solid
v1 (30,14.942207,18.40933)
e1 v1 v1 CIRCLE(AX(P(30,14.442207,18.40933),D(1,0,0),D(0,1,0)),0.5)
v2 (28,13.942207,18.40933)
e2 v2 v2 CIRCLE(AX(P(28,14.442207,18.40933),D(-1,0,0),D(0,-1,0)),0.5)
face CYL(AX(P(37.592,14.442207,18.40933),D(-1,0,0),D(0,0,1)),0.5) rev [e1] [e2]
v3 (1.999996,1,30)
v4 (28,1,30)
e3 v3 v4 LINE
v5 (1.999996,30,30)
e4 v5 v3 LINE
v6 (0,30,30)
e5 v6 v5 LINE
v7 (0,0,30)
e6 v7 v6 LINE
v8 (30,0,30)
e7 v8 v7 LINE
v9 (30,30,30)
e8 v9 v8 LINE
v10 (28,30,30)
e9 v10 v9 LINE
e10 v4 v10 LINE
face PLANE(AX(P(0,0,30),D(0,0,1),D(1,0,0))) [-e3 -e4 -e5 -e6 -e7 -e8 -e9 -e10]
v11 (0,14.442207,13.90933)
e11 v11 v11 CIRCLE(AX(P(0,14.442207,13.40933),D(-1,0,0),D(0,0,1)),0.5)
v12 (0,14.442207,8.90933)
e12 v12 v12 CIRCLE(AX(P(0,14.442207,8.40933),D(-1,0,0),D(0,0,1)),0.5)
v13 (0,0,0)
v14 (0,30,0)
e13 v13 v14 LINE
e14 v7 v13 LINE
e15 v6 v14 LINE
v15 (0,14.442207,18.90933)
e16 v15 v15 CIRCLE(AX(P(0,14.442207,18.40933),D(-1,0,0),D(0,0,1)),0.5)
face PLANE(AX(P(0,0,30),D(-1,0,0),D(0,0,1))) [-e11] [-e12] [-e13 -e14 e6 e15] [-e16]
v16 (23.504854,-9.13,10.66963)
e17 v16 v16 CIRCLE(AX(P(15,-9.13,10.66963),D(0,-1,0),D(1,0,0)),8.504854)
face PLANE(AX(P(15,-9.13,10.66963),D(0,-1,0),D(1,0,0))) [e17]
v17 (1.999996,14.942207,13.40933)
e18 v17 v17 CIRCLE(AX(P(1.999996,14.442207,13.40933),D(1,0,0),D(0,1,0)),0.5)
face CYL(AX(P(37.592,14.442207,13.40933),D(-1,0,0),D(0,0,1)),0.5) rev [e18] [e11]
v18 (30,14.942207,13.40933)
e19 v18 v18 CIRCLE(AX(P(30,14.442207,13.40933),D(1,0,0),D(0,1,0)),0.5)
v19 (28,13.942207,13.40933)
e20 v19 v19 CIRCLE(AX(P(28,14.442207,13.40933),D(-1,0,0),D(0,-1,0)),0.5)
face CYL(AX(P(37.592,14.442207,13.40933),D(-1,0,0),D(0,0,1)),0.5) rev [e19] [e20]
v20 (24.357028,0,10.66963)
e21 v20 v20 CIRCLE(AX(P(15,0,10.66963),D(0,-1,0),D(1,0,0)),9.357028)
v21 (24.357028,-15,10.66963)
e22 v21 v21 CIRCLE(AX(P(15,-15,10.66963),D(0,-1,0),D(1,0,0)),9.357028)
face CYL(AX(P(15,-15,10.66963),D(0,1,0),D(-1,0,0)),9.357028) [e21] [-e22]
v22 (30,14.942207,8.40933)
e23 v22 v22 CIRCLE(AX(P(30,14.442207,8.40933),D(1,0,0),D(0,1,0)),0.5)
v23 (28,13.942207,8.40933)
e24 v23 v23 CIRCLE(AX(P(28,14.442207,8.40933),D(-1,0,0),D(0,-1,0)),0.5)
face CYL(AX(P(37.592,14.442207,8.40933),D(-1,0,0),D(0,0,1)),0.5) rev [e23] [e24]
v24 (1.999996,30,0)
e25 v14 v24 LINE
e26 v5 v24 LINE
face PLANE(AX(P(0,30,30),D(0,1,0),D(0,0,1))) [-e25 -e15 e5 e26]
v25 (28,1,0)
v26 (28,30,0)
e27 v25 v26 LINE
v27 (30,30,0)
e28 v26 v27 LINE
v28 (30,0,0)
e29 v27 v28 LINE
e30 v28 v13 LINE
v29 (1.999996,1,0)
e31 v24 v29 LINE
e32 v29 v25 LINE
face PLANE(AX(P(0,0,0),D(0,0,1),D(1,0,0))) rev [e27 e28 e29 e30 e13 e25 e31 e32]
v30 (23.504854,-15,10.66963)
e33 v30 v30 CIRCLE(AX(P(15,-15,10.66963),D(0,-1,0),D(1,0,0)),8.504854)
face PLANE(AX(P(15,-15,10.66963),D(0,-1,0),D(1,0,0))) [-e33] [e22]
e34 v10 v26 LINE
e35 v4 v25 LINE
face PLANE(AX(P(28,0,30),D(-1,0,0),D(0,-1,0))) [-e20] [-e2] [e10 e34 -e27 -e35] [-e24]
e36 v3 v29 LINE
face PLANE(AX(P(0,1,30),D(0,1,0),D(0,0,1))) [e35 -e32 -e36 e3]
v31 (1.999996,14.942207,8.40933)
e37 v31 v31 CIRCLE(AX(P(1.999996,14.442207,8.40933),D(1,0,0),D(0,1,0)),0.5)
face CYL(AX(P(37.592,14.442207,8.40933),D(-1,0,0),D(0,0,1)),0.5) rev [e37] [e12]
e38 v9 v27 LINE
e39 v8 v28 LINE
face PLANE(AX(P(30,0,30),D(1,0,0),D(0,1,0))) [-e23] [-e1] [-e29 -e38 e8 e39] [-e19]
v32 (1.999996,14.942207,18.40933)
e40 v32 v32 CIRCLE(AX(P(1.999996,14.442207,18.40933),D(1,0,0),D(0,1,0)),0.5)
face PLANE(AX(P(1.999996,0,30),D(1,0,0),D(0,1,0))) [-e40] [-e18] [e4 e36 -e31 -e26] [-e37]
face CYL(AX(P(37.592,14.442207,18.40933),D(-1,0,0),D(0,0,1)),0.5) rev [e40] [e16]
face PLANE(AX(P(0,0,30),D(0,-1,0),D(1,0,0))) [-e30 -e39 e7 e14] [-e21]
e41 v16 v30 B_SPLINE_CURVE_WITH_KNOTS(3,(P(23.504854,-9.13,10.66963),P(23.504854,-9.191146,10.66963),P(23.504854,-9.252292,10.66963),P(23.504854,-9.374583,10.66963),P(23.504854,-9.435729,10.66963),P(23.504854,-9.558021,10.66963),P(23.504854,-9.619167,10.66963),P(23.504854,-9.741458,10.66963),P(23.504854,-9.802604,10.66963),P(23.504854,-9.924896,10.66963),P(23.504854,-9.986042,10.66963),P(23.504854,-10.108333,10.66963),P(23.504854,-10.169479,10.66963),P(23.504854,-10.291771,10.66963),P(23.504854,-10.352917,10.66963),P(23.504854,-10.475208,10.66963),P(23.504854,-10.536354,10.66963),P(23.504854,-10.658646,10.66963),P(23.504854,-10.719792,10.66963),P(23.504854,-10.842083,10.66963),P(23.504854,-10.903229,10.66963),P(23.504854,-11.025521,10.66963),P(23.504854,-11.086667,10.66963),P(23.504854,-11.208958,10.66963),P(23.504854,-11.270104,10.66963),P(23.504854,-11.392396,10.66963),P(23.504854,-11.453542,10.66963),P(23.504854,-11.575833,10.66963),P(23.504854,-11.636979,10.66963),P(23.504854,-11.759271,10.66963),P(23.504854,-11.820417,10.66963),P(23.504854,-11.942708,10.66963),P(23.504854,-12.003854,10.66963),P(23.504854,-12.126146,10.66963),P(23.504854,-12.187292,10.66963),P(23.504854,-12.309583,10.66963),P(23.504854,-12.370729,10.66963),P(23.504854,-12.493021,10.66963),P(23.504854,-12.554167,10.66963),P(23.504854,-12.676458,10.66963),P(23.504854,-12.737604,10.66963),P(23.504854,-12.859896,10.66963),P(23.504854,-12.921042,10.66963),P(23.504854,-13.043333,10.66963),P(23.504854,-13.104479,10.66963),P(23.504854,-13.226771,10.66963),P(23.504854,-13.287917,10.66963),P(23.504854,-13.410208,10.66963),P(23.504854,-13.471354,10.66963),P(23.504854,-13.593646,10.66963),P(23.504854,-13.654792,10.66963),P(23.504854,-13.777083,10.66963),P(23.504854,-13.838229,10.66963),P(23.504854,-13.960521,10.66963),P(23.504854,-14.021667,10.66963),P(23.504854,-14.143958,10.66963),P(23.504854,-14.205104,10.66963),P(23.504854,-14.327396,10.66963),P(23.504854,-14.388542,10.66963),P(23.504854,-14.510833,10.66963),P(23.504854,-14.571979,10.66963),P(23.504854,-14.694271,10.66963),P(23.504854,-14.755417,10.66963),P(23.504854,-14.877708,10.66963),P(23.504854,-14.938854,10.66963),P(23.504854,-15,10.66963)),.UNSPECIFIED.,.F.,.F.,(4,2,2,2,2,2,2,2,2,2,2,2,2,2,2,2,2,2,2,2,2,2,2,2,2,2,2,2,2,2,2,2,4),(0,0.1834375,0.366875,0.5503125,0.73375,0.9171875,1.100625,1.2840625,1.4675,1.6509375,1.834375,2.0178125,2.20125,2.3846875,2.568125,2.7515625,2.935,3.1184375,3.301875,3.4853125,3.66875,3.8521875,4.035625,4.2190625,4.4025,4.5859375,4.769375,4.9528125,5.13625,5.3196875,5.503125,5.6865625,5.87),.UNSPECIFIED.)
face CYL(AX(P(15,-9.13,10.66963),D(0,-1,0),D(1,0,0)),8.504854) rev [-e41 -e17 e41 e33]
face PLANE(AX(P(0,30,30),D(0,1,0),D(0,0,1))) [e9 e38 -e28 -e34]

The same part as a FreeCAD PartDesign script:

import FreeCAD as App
import Part
import Sketcher

doc = App.newDocument("Part")
body = doc.addObject("PartDesign::Body", "Body")

# Sketch on XY plane
sketch1 = doc.addObject("Sketcher::SketchObject", "Sketch")
body.addObject(sketch1)
sketch1.AttachmentSupport = (doc.XY_Plane, [""])
sketch1.MapMode = "FlatFace"
sketch1.addGeometry(Part.LineSegment(App.Vector(0, 30, 0), App.Vector(0, 0, 0)), False)
sketch1.addGeometry(Part.LineSegment(App.Vector(0, 0, 0), App.Vector(30, 0, 0)), False)
sketch1.addGeometry(Part.LineSegment(App.Vector(30, 0, 0), App.Vector(30, 30, 0)), False)
sketch1.addGeometry(Part.LineSegment(App.Vector(30, 30, 0), App.Vector(28, 30, 0)), False)
sketch1.addGeometry(Part.LineSegment(App.Vector(28, 30, 0), App.Vector(28, 1, 0)), False)
sketch1.addGeometry(Part.LineSegment(App.Vector(28, 1, 0), App.Vector(2, 1, 0)), False)
sketch1.addGeometry(Part.LineSegment(App.Vector(2, 1, 0), App.Vector(2, 30, 0)), False)
sketch1.addGeometry(Part.LineSegment(App.Vector(2, 30, 0), App.Vector(0, 30, 0)), False)
sketch1.addConstraint(Sketcher.Constraint("Coincident", 0, 2, 1, 1))
sketch1.addConstraint(Sketcher.Constraint("Coincident", 1, 2, 2, 1))
sketch1.addConstraint(Sketcher.Constraint("Coincident", 2, 2, 3, 1))
sketch1.addConstraint(Sketcher.Constraint("Coincident", 3, 2, 4, 1))
sketch1.addConstraint(Sketcher.Constraint("Coincident", 4, 2, 5, 1))
sketch1.addConstraint(Sketcher.Constraint("Coincident", 5, 2, 6, 1))
sketch1.addConstraint(Sketcher.Constraint("Coincident", 6, 2, 7, 1))
sketch1.addConstraint(Sketcher.Constraint("Coincident", 7, 2, 0, 1))
sketch1.addConstraint(Sketcher.Constraint("Vertical", 0))
sketch1.addConstraint(Sketcher.Constraint("Horizontal", 1))
sketch1.addConstraint(Sketcher.Constraint("Vertical", 2))
sketch1.addConstraint(Sketcher.Constraint("Horizontal", 3))
sketch1.addConstraint(Sketcher.Constraint("Vertical", 4))
sketch1.addConstraint(Sketcher.Constraint("Horizontal", 5))
sketch1.addConstraint(Sketcher.Constraint("Vertical", 6))
sketch1.addConstraint(Sketcher.Constraint("Horizontal", 7))
sketch1.addConstraint(Sketcher.Constraint("Coincident", 0, 2, -1, 1))
sketch1.addConstraint(Sketcher.Constraint("Horizontal", 3, 2, 6, 2))
sketch1.addConstraint(Sketcher.Constraint("Equal", 1, 0))
sketch1.addConstraint(Sketcher.Constraint("DistanceX", 1, 1, 1, 2, 30.0))
sketch1.addConstraint(Sketcher.Constraint("DistanceX", 3, 2, 3, 1, 2.0))
sketch1.addConstraint(Sketcher.Constraint("DistanceY", 4, 2, 4, 1, 29.0))
sketch1.addConstraint(Sketcher.Constraint("DistanceX", 5, 2, 5, 1, 26.000004))
pad1 = doc.addObject("PartDesign::Pad", "Pad")
body.addObject(pad1)
pad1.Profile = sketch1
pad1.Length = 30

# Sketch on XZ plane
sketch2 = doc.addObject("Sketcher::SketchObject", "Sketch001")
body.addObject(sketch2)
sketch2.AttachmentSupport = (doc.XZ_Plane, [""])
sketch2.MapMode = "FlatFace"
sketch2.addGeometry(Part.Circle(App.Vector(15, 11, 0), App.Vector(0, 0, 1), 9), False)
sketch2.addConstraint(Sketcher.Constraint("DistanceX", -1, 1, 0, 3, 15.0))
sketch2.addConstraint(Sketcher.Constraint("Diameter", 0, 18.714055))
sketch2.addConstraint(Sketcher.Constraint("DistanceY", -1, 1, 0, 3, 10.66963))
pad2 = doc.addObject("PartDesign::Pad", "Pad001")
body.addObject(pad2)
pad2.Profile = sketch2
pad2.Length = 15

# Sketch on XZ plane
sketch3 = doc.addObject("Sketcher::SketchObject", "Sketch002")
body.addObject(sketch3)
sketch3.AttachmentSupport = (doc.XZ_Plane, [""])
sketch3.MapMode = "FlatFace"
sketch3.AttachmentOffset = App.Placement(App.Vector(0, 0, 15), App.Rotation())
sketch3.addGeometry(Part.Circle(App.Vector(15, 11, 0), App.Vector(0, 0, 1), 9), False)
sketch3.addConstraint(Sketcher.Constraint("DistanceX", -1, 1, 0, 3, 15.0))
sketch3.addConstraint(Sketcher.Constraint("Diameter", 0, 17.009707))
sketch3.addConstraint(Sketcher.Constraint("DistanceY", -1, 1, 0, 3, 10.66963))
pocket1 = doc.addObject("PartDesign::Pocket", "Pocket")
body.addObject(pocket1)
pocket1.Profile = sketch3
pocket1.Length = 5.87

# Sketch on YZ plane
sketch4 = doc.addObject("Sketcher::SketchObject", "Sketch003")
body.addObject(sketch4)
sketch4.AttachmentSupport = (doc.YZ_Plane, [""])
sketch4.MapMode = "FlatFace"
sketch4.addGeometry(Part.Circle(App.Vector(14.4, 8.4, 0), App.Vector(0, 0, 1), 0.5), False)
sketch4.addGeometry(Part.Circle(App.Vector(14.4, 13.4, 0), App.Vector(0, 0, 1), 0.5), False)
sketch4.addGeometry(Part.Circle(App.Vector(14.4, 18.4, 0), App.Vector(0, 0, 1), 0.5), False)
sketch4.addConstraint(Sketcher.Constraint("Equal", 0, 1))
sketch4.addConstraint(Sketcher.Constraint("Equal", 1, 2))
sketch4.addConstraint(Sketcher.Constraint("Vertical", 0, 3, 1, 3))
sketch4.addConstraint(Sketcher.Constraint("Vertical", 1, 3, 2, 3))
sketch4.addConstraint(Sketcher.Constraint("Diameter", 0, 1.0))
sketch4.addConstraint(Sketcher.Constraint("DistanceY", 0, 3, 1, 3, 5.0))
sketch4.addConstraint(Sketcher.Constraint("DistanceY", 1, 3, 2, 3, 5.0))
sketch4.addConstraint(Sketcher.Constraint("DistanceY", -1, 1, 0, 3, 8.40933))
sketch4.addConstraint(Sketcher.Constraint("DistanceX", -1, 1, 0, 3, 14.442207))
pocket2 = doc.addObject("PartDesign::Pocket", "Pocket001")
body.addObject(pocket2)
pocket2.Profile = sketch4
pocket2.Length = 37.592
pocket2.Reversed = True

doc.recompute()
